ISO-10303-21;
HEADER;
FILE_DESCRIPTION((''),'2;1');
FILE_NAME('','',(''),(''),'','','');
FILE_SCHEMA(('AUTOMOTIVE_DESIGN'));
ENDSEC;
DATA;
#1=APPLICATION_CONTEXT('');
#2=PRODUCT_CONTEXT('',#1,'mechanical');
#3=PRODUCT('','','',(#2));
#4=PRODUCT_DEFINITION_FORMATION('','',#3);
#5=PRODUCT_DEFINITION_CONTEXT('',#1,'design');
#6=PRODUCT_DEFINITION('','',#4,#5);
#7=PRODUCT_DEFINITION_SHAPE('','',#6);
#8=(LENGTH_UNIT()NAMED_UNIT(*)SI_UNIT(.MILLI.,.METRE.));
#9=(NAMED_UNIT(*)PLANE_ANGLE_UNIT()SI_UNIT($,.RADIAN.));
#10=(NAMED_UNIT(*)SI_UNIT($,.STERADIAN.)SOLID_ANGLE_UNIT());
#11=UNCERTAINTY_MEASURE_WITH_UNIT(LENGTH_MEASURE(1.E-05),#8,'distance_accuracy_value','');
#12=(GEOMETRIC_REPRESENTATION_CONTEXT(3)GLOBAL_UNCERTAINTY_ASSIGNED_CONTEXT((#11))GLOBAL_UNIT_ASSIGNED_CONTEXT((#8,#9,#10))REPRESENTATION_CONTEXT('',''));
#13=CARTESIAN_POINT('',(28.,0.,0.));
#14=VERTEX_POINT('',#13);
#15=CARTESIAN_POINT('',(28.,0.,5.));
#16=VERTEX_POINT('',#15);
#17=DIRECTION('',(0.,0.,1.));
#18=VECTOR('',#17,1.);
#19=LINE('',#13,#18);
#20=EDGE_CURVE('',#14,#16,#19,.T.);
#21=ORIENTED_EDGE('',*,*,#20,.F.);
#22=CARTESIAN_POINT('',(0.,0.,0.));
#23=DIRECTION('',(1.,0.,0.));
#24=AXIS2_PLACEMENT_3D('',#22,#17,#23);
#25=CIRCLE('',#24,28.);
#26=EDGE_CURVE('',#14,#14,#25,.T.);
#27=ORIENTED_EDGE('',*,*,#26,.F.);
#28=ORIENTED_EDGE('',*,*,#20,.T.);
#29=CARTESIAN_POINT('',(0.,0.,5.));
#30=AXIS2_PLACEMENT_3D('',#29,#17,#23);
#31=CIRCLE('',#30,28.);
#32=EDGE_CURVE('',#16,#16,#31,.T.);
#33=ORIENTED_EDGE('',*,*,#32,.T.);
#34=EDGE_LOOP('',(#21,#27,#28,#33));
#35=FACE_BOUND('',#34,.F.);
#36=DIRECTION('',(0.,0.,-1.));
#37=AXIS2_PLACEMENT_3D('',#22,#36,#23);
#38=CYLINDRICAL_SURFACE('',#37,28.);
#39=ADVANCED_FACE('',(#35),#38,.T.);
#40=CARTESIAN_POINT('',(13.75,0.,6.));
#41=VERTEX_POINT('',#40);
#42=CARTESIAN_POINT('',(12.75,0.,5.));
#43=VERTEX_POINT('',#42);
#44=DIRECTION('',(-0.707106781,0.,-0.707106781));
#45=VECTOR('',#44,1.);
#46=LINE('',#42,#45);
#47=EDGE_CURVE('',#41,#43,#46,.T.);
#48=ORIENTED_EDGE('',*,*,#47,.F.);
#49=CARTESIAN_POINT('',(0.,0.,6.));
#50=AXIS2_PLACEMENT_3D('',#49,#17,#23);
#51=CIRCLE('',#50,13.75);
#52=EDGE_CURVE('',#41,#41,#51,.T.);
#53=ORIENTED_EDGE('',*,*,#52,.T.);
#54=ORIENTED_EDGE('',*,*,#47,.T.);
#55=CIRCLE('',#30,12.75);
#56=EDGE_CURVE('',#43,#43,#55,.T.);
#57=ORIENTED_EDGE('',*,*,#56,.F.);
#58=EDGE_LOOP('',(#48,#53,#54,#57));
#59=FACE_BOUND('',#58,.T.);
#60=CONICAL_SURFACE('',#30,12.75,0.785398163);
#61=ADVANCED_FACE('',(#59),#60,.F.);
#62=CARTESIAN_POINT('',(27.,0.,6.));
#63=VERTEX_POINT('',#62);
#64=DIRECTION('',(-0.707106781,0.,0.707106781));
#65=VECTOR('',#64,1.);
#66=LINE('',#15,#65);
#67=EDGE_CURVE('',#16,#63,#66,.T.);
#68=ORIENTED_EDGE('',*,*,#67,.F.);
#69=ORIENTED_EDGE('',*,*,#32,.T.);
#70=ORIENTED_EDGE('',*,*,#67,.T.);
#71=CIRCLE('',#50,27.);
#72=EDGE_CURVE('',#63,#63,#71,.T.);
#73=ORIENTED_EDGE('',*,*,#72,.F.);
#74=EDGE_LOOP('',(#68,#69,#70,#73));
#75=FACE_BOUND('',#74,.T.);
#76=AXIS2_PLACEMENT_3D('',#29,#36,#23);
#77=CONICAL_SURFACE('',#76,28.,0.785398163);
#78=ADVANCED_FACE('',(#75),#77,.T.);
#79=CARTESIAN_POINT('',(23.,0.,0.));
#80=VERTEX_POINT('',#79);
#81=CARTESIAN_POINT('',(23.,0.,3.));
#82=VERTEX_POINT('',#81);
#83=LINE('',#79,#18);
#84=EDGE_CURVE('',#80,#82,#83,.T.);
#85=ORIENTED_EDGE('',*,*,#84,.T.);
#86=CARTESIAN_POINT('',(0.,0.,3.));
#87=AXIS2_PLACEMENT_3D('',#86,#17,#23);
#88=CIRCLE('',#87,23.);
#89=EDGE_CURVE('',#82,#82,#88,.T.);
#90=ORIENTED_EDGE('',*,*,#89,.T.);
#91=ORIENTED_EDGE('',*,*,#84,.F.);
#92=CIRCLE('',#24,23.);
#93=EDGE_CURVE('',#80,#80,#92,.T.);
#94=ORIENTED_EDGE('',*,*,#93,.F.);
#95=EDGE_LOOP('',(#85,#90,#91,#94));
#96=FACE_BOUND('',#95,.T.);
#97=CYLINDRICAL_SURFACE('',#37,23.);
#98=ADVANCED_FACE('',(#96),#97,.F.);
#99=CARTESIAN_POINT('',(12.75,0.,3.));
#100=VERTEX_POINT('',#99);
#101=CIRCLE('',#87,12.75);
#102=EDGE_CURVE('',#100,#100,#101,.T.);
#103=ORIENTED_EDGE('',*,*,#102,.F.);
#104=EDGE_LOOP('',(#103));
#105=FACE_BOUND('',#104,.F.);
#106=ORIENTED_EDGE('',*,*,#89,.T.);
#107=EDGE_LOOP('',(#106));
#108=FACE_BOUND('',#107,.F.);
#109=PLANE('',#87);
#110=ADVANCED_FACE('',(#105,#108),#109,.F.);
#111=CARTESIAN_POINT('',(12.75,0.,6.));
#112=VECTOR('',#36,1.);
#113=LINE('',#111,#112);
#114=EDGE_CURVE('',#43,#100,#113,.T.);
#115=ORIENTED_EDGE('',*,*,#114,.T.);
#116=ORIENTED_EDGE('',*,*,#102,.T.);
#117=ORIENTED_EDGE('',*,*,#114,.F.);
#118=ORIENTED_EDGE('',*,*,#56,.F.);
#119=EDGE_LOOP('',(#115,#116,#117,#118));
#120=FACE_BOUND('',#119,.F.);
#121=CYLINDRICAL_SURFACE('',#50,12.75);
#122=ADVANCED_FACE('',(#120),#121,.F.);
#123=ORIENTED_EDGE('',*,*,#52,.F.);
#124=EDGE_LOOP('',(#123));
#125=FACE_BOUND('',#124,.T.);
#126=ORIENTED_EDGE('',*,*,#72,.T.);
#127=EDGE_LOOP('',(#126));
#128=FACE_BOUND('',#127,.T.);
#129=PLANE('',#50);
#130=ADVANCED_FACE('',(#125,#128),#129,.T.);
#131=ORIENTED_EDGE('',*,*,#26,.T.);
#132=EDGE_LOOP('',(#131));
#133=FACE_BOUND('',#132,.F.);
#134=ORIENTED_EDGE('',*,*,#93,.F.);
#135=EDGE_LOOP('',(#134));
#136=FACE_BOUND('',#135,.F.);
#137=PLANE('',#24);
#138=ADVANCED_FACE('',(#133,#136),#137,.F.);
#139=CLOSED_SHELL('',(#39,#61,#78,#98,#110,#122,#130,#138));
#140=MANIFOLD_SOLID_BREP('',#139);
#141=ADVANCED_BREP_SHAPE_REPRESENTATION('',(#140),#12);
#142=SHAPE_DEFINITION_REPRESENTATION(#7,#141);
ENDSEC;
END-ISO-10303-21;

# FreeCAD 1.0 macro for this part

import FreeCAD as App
import Part
import Sketcher
from FreeCAD import Vector
Q = App.Units.Quantity


def edges_at(feature, points):
    """Names of the edges that pass closest to the given points."""
    edges = feature.Shape.Edges
    near = lambda p: min(range(len(edges)), key=lambda i: edges[i].distToShape(Part.Vertex(*p))[0])
    return sorted({f"Edge{near(p) + 1}" for p in points})

doc = App.newDocument("Part")
params = doc.addObject("Spreadsheet::Sheet", "Params")
for row, (alias, value) in enumerate([
    ("sketch1_diameter", "56 mm"),
    ("pad1_length", "6 mm"),
    ("sketch2_diameter", "46 mm"),
    ("pocket1_length", "3 mm"),
    ("sketch3_diameter", "25.5 mm"),
    ("chamfer_size", "1 mm"),
], start=1):
    params.set(f"A{row}", alias)
    params.set(f"B{row}", "=" + value)
    params.setAlias(f"B{row}", alias)

body = doc.addObject("PartDesign::Body", "Body")

# Sketch on XY plane
sketch1 = body.newObject("Sketcher::SketchObject", "Sketch")
sketch1.AttachmentSupport = (doc.getObject("XY_Plane"), [""])
sketch1.MapMode = "FlatFace"
sketch1.addGeometry(Part.Circle(Vector(0, 0, 0), Vector(0, 0, 1), 28), False)
sketch1.addConstraint([
    Sketcher.Constraint("Coincident", 0, 3, -1, 1),
    Sketcher.Constraint("Diameter", 0, Q("56 mm")),
])
sketch1.setExpression("Constraints[1]", "Params.sketch1_diameter")
pad1 = body.newObject("PartDesign::Pad", "Pad")
pad1.Profile = sketch1
pad1.setExpression("Length", "Params.pad1_length")

# Sketch on XY plane
sketch2 = body.newObject("Sketcher::SketchObject", "Sketch001")
sketch2.AttachmentSupport = (doc.getObject("XY_Plane"), [""])
sketch2.MapMode = "FlatFace"
sketch2.addGeometry(Part.Circle(Vector(0, 0, 0), Vector(0, 0, 1), 23), False)
sketch2.addConstraint([
    Sketcher.Constraint("Coincident", 0, 3, -1, 1),
    Sketcher.Constraint("Diameter", 0, Q("46 mm")),
])
sketch2.setExpression("Constraints[1]", "Params.sketch2_diameter")
pocket1 = body.newObject("PartDesign::Pocket", "Pocket")
pocket1.Profile = sketch2
pocket1.setExpression("Length", "Params.pocket1_length")
pocket1.Reversed = True

# Sketch on XY plane
sketch3 = body.newObject("Sketcher::SketchObject", "Sketch002")
sketch3.AttachmentSupport = (doc.getObject("XY_Plane"), [""])
sketch3.MapMode = "FlatFace"
sketch3.AttachmentOffset = App.Placement(Vector(0, 0, 6), App.Rotation())
sketch3.addGeometry(Part.Circle(Vector(0, 0, 0), Vector(0, 0, 1), 13), False)
sketch3.addConstraint([
    Sketcher.Constraint("Coincident", 0, 3, -1, 1),
    Sketcher.Constraint("Diameter", 0, Q("25.5 mm")),
])
sketch3.setExpression("Constraints[1]", "Params.sketch3_diameter")
pocket2 = body.newObject("PartDesign::Pocket", "Pocket001")
pocket2.Profile = sketch3
pocket2.Type = "ThroughAll"
doc.recompute()

chamfer = body.newObject("PartDesign::Chamfer", "Chamfer")
chamfer.Base = (pocket2, edges_at(pocket2, [(-12.75, 0, 6), (-28, 0, 6)]))
chamfer.setExpression("Size", "Params.chamfer_size")

doc.recompute()
